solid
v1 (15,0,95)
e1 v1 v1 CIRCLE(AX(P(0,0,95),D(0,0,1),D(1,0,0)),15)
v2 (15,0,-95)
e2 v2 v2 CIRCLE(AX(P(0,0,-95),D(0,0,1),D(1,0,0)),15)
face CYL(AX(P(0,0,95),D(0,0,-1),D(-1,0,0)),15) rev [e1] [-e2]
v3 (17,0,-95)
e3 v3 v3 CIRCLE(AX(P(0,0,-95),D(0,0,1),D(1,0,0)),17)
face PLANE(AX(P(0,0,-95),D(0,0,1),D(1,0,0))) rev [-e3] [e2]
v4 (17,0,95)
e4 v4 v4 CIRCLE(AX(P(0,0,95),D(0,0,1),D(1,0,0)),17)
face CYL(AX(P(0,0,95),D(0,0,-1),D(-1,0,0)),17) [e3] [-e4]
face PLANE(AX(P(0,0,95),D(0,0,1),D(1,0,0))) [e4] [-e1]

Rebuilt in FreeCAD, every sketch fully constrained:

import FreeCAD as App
import Part
import Sketcher

doc = App.newDocument("Part")
params = doc.addObject("Spreadsheet::Sheet", "Params")
for row, (alias, value) in enumerate([
    ("sketch1_diameter", "34 mm"),
    ("sketch1_diameter2", "30 mm"),
    ("pad1_length", "190 mm"),
], start=1):
    params.set(f"A{row}", alias)
    params.set(f"B{row}", "=" + value)
    params.setAlias(f"B{row}", alias)

body = doc.addObject("PartDesign::Body", "Body")

sketch1 = body.newObject("Sketcher::SketchObject", "Sketch")
sketch1.AttachmentSupport = (doc.getObject("XY_Plane"), [""])
sketch1.MapMode = "FlatFace"
sketch1.addGeometry(Part.Circle(App.Vector(0, 0, 0), App.Vector(0, 0, 1), 17), False)
sketch1.addGeometry(Part.Circle(App.Vector(0, 0, 0), App.Vector(0, 0, 1), 15), False)
sketch1.addConstraint(Sketcher.Constraint("Coincident", 0, 3, -1, 1))
sketch1.addConstraint(Sketcher.Constraint("Coincident", 1, 3, -1, 1))
sketch1.addConstraint(Sketcher.Constraint("Diameter", 0, 34.0))
sketch1.addConstraint(Sketcher.Constraint("Diameter", 1, 30.0))
sketch1.setExpression("Constraints[2]", "Params.sketch1_diameter")
sketch1.setExpression("Constraints[3]", "Params.sketch1_diameter2")
pad1 = body.newObject("PartDesign::Pad", "Pad")
pad1.Profile = sketch1
pad1.setExpression("Length", "Params.pad1_length")
pad1.Midplane = True

doc.recompute()
